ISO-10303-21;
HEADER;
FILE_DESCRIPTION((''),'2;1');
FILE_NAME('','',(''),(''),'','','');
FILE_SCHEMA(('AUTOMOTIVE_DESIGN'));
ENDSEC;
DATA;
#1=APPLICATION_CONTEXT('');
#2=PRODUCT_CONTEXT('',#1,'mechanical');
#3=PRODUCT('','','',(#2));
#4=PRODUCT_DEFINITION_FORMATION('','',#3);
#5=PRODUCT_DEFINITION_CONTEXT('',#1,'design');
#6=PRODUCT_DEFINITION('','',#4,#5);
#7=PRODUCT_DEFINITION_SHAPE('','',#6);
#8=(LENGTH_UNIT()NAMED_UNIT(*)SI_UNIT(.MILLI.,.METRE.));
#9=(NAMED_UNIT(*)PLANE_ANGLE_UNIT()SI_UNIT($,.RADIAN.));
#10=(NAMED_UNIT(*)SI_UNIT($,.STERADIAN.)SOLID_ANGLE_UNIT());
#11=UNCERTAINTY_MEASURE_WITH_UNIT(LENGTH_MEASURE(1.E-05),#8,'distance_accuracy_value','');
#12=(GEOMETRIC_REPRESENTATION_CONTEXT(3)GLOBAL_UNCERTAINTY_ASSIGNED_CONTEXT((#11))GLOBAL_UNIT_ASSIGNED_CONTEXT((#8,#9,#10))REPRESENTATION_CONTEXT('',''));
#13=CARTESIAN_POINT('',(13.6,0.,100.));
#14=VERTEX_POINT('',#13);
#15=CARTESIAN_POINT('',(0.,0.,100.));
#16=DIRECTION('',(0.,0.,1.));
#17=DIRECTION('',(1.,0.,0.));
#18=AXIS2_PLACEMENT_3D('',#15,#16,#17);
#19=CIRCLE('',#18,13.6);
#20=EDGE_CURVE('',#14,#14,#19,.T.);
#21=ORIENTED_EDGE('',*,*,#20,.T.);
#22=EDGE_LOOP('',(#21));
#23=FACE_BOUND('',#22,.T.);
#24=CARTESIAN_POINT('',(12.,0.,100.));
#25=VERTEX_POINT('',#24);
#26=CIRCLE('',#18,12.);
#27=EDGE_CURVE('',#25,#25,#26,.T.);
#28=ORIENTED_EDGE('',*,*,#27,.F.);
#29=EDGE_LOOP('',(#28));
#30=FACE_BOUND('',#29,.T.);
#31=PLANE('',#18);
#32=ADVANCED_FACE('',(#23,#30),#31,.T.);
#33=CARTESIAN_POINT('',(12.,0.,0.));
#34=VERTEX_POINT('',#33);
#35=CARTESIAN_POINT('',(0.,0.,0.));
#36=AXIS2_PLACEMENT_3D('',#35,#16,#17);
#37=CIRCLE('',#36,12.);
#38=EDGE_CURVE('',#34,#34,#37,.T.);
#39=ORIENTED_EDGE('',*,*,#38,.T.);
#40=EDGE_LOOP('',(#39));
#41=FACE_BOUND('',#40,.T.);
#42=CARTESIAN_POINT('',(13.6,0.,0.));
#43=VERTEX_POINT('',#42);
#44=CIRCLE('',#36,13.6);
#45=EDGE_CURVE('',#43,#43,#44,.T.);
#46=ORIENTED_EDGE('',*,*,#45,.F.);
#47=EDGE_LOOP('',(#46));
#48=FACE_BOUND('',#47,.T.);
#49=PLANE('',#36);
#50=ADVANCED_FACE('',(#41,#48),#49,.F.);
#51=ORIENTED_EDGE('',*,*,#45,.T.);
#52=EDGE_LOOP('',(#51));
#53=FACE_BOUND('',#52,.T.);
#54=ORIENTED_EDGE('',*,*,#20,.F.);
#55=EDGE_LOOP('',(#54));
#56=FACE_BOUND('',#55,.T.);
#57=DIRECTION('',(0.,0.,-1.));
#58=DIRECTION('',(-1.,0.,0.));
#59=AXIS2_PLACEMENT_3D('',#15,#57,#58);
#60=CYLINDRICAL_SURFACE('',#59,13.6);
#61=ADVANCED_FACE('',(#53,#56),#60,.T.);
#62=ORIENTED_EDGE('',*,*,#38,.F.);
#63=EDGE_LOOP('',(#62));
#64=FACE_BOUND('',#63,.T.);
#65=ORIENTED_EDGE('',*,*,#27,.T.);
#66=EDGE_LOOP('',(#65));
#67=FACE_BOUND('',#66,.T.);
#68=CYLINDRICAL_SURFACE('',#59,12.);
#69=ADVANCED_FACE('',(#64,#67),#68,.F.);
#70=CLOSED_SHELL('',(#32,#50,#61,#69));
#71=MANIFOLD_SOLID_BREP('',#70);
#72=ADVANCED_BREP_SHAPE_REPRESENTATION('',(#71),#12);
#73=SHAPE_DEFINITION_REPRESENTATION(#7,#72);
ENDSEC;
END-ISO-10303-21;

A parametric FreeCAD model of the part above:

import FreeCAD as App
import Part
import Sketcher

V = App.Vector

doc = App.newDocument("Part")
body = doc.addObject("PartDesign::Body", "Body")

sketch1 = body.newObject("Sketcher::SketchObject", "Sketch")
sketch1.AttachmentSupport = (doc.getObject("XY_Plane"), [""])
sketch1.MapMode = "FlatFace"
sketch1.addGeometry([
    Part.Circle(V(0, 0, 0), V(0, 0, 1), 13.6),
    Part.Circle(V(0, 0, 0), V(0, 0, 1), 12),
], False)
sketch1.addConstraint([
    Sketcher.Constraint("Coincident", 0, 3, -1, 1),
    Sketcher.Constraint("Coincident", 1, 3, -1, 1),
    Sketcher.Constraint("Diameter", 1, 24.0),
    Sketcher.Constraint("Diameter", 0, 27.2),
])
pad1 = body.newObject("PartDesign::Pad", "Pad")
pad1.Profile = sketch1
pad1.Length = 100

doc.recompute()
